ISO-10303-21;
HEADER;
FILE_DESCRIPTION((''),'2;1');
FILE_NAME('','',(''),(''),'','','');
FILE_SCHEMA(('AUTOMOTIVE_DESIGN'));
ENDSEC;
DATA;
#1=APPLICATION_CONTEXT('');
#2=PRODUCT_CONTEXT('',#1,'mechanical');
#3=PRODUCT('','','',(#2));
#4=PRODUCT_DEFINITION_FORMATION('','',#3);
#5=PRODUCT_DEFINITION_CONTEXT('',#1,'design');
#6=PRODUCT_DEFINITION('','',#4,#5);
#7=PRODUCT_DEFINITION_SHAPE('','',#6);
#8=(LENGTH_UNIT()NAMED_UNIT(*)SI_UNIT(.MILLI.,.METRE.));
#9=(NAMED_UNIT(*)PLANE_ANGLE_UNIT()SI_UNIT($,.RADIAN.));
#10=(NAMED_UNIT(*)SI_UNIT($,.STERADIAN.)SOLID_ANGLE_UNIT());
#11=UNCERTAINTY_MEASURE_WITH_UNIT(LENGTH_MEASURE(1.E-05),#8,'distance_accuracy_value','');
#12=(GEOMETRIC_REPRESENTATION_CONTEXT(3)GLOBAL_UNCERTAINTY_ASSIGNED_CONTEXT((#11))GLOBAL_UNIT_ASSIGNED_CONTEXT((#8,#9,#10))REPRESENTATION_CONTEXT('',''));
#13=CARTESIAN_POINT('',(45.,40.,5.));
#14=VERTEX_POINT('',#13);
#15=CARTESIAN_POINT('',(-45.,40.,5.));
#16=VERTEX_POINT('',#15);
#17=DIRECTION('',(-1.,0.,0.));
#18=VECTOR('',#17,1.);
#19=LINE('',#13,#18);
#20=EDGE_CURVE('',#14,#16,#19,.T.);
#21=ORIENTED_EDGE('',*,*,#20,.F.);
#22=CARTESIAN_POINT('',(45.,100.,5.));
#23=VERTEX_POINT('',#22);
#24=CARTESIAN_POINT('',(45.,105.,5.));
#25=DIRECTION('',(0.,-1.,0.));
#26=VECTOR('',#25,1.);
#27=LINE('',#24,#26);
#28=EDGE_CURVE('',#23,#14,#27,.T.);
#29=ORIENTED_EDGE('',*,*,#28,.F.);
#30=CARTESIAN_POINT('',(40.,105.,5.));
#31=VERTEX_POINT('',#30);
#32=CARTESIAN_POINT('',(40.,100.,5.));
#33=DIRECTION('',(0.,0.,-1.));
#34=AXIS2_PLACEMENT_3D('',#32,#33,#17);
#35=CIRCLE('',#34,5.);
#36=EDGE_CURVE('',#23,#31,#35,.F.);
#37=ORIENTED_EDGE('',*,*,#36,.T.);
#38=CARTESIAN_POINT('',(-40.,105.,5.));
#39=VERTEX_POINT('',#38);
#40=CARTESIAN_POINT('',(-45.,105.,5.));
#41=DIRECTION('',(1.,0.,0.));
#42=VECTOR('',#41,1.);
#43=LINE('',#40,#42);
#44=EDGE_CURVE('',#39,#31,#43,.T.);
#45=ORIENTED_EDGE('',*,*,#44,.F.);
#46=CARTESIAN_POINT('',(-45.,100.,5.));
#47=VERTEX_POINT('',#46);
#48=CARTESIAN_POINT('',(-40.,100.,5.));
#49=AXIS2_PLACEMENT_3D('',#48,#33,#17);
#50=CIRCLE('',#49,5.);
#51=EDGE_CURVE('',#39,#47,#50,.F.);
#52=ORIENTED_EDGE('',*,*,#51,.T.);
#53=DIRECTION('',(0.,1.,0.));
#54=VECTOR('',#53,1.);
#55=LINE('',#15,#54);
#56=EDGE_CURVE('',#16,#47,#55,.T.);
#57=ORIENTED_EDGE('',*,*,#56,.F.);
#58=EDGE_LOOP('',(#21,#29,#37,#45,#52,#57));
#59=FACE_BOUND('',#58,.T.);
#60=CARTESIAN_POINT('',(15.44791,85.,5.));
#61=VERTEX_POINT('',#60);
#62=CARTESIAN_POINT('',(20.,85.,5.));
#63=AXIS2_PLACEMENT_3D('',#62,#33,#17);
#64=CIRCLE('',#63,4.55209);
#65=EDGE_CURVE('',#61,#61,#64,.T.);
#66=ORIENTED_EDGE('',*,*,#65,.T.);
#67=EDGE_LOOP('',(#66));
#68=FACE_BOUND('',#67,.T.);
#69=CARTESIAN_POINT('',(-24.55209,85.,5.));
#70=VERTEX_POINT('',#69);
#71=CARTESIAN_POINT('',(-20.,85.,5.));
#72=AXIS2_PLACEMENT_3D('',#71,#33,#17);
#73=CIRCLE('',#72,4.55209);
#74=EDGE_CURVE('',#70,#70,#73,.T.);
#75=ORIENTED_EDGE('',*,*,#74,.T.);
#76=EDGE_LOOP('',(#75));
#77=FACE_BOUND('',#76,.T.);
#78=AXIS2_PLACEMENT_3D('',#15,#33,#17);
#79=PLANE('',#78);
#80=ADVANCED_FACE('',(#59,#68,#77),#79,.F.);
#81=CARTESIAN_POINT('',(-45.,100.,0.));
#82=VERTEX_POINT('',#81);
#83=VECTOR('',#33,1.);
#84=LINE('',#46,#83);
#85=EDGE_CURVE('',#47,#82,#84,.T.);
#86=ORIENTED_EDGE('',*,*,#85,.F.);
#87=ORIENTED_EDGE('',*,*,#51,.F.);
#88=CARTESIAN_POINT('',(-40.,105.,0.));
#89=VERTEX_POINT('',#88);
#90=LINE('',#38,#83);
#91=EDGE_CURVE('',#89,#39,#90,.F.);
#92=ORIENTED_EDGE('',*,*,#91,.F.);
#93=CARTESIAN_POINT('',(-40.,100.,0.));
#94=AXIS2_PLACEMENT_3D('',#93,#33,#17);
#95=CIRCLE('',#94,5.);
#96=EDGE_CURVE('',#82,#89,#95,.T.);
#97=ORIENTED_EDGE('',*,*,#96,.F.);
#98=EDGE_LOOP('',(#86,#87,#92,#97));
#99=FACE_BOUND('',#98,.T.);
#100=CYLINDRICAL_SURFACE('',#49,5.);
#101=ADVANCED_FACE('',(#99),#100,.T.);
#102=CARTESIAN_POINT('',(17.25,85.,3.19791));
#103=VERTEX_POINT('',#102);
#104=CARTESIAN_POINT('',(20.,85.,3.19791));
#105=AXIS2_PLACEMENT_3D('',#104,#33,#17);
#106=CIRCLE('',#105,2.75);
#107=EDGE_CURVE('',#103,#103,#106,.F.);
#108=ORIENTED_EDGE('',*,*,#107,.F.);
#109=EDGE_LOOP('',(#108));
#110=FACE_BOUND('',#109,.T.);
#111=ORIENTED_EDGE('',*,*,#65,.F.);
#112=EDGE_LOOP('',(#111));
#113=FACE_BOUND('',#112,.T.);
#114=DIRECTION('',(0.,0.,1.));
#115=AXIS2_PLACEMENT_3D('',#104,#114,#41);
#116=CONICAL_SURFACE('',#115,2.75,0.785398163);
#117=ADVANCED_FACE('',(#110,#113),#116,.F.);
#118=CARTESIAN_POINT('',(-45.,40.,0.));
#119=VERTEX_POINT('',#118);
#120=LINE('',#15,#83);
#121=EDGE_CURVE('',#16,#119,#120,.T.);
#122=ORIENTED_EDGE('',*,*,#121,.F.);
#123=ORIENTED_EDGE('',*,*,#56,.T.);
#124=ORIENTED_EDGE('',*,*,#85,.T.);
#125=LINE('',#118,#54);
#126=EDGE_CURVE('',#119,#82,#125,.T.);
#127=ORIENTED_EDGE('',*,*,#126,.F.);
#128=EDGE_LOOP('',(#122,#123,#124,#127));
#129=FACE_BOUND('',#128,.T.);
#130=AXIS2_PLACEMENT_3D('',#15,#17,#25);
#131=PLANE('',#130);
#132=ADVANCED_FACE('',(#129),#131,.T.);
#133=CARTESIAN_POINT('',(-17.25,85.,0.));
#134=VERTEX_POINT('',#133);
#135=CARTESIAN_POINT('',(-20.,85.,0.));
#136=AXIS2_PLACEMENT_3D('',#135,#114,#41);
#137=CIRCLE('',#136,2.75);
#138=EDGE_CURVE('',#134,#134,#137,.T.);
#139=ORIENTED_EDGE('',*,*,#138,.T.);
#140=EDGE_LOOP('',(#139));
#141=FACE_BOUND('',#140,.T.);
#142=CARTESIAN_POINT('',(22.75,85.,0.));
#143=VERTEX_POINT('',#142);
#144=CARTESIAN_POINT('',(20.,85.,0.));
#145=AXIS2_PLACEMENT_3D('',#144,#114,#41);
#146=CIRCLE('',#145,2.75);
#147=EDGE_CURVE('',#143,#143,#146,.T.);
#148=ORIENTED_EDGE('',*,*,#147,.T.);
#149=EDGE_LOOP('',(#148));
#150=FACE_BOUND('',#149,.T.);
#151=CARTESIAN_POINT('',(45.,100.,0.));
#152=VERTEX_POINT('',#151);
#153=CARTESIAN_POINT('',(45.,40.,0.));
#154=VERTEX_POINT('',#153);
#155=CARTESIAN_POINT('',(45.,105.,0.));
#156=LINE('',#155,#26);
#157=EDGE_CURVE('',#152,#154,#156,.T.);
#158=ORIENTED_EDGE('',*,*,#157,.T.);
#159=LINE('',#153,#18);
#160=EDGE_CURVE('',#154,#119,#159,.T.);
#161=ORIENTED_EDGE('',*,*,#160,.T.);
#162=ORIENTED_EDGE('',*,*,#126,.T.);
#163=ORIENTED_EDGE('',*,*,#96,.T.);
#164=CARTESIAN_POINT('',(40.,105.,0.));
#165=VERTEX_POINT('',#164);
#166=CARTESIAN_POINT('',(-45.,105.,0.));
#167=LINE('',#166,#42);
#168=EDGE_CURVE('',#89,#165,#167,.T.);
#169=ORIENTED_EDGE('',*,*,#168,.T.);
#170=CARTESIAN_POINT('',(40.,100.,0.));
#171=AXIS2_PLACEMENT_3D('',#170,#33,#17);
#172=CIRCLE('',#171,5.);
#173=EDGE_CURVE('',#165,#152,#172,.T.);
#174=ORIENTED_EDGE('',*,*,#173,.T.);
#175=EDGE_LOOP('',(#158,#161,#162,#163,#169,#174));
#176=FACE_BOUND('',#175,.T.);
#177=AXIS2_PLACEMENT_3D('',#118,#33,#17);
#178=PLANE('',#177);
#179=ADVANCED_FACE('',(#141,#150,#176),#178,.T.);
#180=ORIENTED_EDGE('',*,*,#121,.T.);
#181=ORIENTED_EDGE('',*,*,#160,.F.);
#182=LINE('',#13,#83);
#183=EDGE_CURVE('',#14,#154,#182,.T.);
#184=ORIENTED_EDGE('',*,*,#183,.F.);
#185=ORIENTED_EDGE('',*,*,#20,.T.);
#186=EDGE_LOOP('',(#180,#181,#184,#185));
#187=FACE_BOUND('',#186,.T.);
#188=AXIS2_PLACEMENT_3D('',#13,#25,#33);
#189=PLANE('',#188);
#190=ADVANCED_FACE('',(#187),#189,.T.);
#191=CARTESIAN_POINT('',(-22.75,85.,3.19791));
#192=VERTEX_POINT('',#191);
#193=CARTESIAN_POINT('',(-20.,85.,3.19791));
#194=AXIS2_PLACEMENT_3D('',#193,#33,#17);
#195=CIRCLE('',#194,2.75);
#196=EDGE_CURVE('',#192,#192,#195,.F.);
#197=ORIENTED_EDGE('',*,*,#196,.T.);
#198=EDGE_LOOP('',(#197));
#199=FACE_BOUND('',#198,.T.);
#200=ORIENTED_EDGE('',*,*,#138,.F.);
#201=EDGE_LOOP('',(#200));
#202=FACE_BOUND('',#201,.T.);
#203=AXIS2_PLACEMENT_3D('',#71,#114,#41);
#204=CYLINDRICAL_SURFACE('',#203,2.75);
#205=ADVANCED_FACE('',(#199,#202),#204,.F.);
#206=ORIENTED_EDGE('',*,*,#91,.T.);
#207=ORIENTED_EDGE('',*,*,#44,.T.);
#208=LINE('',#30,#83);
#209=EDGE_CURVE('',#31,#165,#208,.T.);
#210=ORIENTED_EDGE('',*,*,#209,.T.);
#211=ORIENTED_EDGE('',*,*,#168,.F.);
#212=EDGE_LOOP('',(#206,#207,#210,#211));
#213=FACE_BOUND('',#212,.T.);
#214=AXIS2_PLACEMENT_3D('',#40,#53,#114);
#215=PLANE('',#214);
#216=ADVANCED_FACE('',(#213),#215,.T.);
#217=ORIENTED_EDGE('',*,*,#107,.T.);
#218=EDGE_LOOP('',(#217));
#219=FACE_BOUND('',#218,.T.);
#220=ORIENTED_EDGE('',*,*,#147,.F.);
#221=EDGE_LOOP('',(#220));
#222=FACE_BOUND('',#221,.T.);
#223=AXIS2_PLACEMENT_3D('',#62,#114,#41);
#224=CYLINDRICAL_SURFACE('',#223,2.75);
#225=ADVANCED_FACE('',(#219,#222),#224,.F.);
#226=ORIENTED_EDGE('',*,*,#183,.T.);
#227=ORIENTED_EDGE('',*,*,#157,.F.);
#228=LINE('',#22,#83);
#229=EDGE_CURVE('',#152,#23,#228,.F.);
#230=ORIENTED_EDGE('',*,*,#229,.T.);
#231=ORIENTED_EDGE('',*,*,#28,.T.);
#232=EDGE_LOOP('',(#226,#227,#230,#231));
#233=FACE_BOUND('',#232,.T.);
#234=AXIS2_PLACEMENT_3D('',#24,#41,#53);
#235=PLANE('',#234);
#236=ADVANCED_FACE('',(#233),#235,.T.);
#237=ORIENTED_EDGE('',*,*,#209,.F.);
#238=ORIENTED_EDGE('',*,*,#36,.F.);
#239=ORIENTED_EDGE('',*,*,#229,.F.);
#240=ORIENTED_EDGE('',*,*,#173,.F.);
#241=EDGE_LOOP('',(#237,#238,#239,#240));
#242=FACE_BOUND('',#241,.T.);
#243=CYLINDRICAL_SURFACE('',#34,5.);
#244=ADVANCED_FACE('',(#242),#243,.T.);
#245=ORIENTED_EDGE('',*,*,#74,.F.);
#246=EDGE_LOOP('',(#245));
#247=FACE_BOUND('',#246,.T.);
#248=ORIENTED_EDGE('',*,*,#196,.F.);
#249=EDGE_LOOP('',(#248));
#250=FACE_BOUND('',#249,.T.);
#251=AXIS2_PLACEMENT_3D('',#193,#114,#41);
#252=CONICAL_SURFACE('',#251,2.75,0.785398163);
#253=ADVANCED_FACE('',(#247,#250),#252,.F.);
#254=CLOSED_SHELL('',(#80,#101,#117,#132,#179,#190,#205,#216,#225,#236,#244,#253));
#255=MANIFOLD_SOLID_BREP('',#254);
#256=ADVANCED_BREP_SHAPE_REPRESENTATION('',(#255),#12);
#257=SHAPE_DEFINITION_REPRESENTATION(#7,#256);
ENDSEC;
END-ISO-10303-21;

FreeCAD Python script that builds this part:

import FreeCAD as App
import Part
import Sketcher


def edges_at(feature, points):
    """Names of the edges that pass closest to the given points."""
    edges = feature.Shape.Edges
    near = lambda p: min(range(len(edges)), key=lambda i: edges[i].distToShape(Part.Vertex(*p))[0])
    return sorted({f"Edge{near(p) + 1}" for p in points})


def add_polygon(sketch, points):
    """Adds a closed chain of lines whose ends are joined by coincident constraints."""
    first, n = sketch.GeometryCount, len(points)
    for a, b in zip(points, points[1:] + points[:1]):
        sketch.addGeometry(Part.LineSegment(App.Vector(*a, 0), App.Vector(*b, 0)), False)
    for i in range(n):
        sketch.addConstraint(Sketcher.Constraint("Coincident", first + i, 2, first + (i + 1) % n, 1))

doc = App.newDocument("Part")
body = doc.addObject("PartDesign::Body", "Body")

# Sketch on XY plane
sketch1 = doc.addObject("Sketcher::SketchObject", "Sketch")
body.addObject(sketch1)
sketch1.AttachmentSupport = (doc.XY_Plane, [""])
sketch1.MapMode = "FlatFace"
add_polygon(sketch1, [(45, 105), (45, 40), (-45, 40), (-45, 105)])  # lines 0-3
sketch1.addConstraint([
    Sketcher.Constraint("Vertical", 0),
    Sketcher.Constraint("Horizontal", 1),
    Sketcher.Constraint("Vertical", 2),
    Sketcher.Constraint("Horizontal", 3),
    Sketcher.Constraint("DistanceX", 1, 2, 1, 1, 90.0),
    Sketcher.Constraint("DistanceY", 0, 2, 0, 1, 65.0),
    Sketcher.Constraint("DistanceX", -1, 1, 0, 2, 45.0),
    Sketcher.Constraint("DistanceY", -1, 1, 0, 2, 40.0),
])
pad1 = doc.addObject("PartDesign::Pad", "Pad")
body.addObject(pad1)
pad1.Profile = sketch1
pad1.Length = 5

# Sketch on XY plane
sketch2 = doc.addObject("Sketcher::SketchObject", "Sketch001")
body.addObject(sketch2)
sketch2.AttachmentSupport = (doc.XY_Plane, [""])
sketch2.MapMode = "FlatFace"
sketch2.AttachmentOffset = App.Placement(App.Vector(0, 0, 5), App.Rotation())
sketch2.addGeometry(Part.Circle(App.Vector(-20, 85, 0), App.Vector(0, 0, 1), 2.8), False)
sketch2.addConstraint([
    Sketcher.Constraint("Diameter", 0, 5.5),
    Sketcher.Constraint("DistanceX", 0, 3, -1, 1, 20.0),
    Sketcher.Constraint("DistanceY", -1, 1, 0, 3, 85.0),
])
doc.recompute()
hole = doc.addObject("PartDesign::Hole", "Hole")
body.addObject(hole)
hole.Profile = sketch2
hole.ThreadType = "None"
hole.Diameter = 5.5
hole.DepthType = "ThroughAll"

# Sketch on XY plane
sketch3 = doc.addObject("Sketcher::SketchObject", "Sketch002")
body.addObject(sketch3)
sketch3.AttachmentSupport = (doc.XY_Plane, [""])
sketch3.MapMode = "FlatFace"
sketch3.AttachmentOffset = App.Placement(App.Vector(0, 0, 5), App.Rotation())
sketch3.addGeometry(Part.Circle(App.Vector(20, 85, 0), App.Vector(0, 0, 1), 2.8), False)
sketch3.addConstraint([
    Sketcher.Constraint("Diameter", 0, 5.5),
    Sketcher.Constraint("DistanceX", -1, 1, 0, 3, 20.0),
    Sketcher.Constraint("DistanceY", -1, 1, 0, 3, 85.0),
])
doc.recompute()
hole2 = doc.addObject("PartDesign::Hole", "Hole001")
body.addObject(hole2)
hole2.Profile = sketch3
hole2.ThreadType = "None"
hole2.Diameter = 5.5
hole2.DepthType = "ThroughAll"
doc.recompute()

chamfer = doc.addObject("PartDesign::Chamfer", "Chamfer")
body.addObject(chamfer)
chamfer.Base = (hole2, edges_at(hole2, [(-17.25, 85, 5)]))
chamfer.Size = 1.80209
doc.recompute()

chamfer2 = doc.addObject("PartDesign::Chamfer", "Chamfer001")
body.addObject(chamfer2)
chamfer2.Base = (chamfer, edges_at(chamfer, [(22.75, 85, 5)]))
chamfer2.Size = 1.80209
doc.recompute()

fillet = doc.addObject("PartDesign::Fillet", "Fillet")
body.addObject(fillet)
fillet.Base = (chamfer2, edges_at(chamfer2, [(45, 105, 2.5)]))
fillet.Radius = 5
doc.recompute()

fillet2 = doc.addObject("PartDesign::Fillet", "Fillet001")
body.addObject(fillet2)
fillet2.Base = (fillet, edges_at(fillet, [(-45, 105, 2.5)]))
fillet2.Radius = 5

doc.recompute()
